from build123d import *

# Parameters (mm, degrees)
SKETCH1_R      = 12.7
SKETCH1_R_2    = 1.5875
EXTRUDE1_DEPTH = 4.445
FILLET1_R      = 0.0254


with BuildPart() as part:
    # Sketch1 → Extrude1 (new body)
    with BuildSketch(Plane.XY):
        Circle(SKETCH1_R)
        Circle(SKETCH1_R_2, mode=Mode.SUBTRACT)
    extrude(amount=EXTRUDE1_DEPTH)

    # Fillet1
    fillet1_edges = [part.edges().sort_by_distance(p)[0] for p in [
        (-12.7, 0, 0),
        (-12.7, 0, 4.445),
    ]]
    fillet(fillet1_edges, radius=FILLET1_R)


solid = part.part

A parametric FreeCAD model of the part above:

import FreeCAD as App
import Part
import Sketcher
from FreeCAD import Vector
Q = App.Units.Quantity


def edges_at(feature, points):
    """Names of the edges that pass closest to the given points."""
    edges = feature.Shape.Edges
    near = lambda p: min(range(len(edges)), key=lambda i: edges[i].distToShape(Part.Vertex(*p))[0])
    return sorted({f"Edge{near(p) + 1}" for p in points})

doc = App.newDocument("Part")
body = doc.addObject("PartDesign::Body", "Body")

# Sketch on XY plane
sketch1 = body.newObject("Sketcher::SketchObject", "Sketch")
sketch1.AttachmentSupport = (doc.getObject("XY_Plane"), [""])
sketch1.MapMode = "FlatFace"
sketch1.addGeometry([
    Part.Circle(Vector(0, 0, 0), Vector(0, 0, 1), 12.7),
    Part.Circle(Vector(0, 0, 0), Vector(0, 0, 1), 1.6),
], False)
sketch1.addConstraint([
    Sketcher.Constraint("Coincident", 0, 3, -1, 1),
    Sketcher.Constraint("Coincident", 1, 3, -1, 1),
    Sketcher.Constraint("Diameter", 0, Q("1 in")),
    Sketcher.Constraint("Diameter", 1, Q("0.125 in")),
])
pad1 = body.newObject("PartDesign::Pad", "Pad")
pad1.Profile = sketch1
pad1.Length = Q("0.175 in")
doc.recompute()

fillet = body.newObject("PartDesign::Fillet", "Fillet")
fillet.Base = (pad1, edges_at(pad1, [(-12.7, 0, 0), (-12.7, 0, 4.445)]))
fillet.Radius = Q("0.001 in")

doc.recompute()
